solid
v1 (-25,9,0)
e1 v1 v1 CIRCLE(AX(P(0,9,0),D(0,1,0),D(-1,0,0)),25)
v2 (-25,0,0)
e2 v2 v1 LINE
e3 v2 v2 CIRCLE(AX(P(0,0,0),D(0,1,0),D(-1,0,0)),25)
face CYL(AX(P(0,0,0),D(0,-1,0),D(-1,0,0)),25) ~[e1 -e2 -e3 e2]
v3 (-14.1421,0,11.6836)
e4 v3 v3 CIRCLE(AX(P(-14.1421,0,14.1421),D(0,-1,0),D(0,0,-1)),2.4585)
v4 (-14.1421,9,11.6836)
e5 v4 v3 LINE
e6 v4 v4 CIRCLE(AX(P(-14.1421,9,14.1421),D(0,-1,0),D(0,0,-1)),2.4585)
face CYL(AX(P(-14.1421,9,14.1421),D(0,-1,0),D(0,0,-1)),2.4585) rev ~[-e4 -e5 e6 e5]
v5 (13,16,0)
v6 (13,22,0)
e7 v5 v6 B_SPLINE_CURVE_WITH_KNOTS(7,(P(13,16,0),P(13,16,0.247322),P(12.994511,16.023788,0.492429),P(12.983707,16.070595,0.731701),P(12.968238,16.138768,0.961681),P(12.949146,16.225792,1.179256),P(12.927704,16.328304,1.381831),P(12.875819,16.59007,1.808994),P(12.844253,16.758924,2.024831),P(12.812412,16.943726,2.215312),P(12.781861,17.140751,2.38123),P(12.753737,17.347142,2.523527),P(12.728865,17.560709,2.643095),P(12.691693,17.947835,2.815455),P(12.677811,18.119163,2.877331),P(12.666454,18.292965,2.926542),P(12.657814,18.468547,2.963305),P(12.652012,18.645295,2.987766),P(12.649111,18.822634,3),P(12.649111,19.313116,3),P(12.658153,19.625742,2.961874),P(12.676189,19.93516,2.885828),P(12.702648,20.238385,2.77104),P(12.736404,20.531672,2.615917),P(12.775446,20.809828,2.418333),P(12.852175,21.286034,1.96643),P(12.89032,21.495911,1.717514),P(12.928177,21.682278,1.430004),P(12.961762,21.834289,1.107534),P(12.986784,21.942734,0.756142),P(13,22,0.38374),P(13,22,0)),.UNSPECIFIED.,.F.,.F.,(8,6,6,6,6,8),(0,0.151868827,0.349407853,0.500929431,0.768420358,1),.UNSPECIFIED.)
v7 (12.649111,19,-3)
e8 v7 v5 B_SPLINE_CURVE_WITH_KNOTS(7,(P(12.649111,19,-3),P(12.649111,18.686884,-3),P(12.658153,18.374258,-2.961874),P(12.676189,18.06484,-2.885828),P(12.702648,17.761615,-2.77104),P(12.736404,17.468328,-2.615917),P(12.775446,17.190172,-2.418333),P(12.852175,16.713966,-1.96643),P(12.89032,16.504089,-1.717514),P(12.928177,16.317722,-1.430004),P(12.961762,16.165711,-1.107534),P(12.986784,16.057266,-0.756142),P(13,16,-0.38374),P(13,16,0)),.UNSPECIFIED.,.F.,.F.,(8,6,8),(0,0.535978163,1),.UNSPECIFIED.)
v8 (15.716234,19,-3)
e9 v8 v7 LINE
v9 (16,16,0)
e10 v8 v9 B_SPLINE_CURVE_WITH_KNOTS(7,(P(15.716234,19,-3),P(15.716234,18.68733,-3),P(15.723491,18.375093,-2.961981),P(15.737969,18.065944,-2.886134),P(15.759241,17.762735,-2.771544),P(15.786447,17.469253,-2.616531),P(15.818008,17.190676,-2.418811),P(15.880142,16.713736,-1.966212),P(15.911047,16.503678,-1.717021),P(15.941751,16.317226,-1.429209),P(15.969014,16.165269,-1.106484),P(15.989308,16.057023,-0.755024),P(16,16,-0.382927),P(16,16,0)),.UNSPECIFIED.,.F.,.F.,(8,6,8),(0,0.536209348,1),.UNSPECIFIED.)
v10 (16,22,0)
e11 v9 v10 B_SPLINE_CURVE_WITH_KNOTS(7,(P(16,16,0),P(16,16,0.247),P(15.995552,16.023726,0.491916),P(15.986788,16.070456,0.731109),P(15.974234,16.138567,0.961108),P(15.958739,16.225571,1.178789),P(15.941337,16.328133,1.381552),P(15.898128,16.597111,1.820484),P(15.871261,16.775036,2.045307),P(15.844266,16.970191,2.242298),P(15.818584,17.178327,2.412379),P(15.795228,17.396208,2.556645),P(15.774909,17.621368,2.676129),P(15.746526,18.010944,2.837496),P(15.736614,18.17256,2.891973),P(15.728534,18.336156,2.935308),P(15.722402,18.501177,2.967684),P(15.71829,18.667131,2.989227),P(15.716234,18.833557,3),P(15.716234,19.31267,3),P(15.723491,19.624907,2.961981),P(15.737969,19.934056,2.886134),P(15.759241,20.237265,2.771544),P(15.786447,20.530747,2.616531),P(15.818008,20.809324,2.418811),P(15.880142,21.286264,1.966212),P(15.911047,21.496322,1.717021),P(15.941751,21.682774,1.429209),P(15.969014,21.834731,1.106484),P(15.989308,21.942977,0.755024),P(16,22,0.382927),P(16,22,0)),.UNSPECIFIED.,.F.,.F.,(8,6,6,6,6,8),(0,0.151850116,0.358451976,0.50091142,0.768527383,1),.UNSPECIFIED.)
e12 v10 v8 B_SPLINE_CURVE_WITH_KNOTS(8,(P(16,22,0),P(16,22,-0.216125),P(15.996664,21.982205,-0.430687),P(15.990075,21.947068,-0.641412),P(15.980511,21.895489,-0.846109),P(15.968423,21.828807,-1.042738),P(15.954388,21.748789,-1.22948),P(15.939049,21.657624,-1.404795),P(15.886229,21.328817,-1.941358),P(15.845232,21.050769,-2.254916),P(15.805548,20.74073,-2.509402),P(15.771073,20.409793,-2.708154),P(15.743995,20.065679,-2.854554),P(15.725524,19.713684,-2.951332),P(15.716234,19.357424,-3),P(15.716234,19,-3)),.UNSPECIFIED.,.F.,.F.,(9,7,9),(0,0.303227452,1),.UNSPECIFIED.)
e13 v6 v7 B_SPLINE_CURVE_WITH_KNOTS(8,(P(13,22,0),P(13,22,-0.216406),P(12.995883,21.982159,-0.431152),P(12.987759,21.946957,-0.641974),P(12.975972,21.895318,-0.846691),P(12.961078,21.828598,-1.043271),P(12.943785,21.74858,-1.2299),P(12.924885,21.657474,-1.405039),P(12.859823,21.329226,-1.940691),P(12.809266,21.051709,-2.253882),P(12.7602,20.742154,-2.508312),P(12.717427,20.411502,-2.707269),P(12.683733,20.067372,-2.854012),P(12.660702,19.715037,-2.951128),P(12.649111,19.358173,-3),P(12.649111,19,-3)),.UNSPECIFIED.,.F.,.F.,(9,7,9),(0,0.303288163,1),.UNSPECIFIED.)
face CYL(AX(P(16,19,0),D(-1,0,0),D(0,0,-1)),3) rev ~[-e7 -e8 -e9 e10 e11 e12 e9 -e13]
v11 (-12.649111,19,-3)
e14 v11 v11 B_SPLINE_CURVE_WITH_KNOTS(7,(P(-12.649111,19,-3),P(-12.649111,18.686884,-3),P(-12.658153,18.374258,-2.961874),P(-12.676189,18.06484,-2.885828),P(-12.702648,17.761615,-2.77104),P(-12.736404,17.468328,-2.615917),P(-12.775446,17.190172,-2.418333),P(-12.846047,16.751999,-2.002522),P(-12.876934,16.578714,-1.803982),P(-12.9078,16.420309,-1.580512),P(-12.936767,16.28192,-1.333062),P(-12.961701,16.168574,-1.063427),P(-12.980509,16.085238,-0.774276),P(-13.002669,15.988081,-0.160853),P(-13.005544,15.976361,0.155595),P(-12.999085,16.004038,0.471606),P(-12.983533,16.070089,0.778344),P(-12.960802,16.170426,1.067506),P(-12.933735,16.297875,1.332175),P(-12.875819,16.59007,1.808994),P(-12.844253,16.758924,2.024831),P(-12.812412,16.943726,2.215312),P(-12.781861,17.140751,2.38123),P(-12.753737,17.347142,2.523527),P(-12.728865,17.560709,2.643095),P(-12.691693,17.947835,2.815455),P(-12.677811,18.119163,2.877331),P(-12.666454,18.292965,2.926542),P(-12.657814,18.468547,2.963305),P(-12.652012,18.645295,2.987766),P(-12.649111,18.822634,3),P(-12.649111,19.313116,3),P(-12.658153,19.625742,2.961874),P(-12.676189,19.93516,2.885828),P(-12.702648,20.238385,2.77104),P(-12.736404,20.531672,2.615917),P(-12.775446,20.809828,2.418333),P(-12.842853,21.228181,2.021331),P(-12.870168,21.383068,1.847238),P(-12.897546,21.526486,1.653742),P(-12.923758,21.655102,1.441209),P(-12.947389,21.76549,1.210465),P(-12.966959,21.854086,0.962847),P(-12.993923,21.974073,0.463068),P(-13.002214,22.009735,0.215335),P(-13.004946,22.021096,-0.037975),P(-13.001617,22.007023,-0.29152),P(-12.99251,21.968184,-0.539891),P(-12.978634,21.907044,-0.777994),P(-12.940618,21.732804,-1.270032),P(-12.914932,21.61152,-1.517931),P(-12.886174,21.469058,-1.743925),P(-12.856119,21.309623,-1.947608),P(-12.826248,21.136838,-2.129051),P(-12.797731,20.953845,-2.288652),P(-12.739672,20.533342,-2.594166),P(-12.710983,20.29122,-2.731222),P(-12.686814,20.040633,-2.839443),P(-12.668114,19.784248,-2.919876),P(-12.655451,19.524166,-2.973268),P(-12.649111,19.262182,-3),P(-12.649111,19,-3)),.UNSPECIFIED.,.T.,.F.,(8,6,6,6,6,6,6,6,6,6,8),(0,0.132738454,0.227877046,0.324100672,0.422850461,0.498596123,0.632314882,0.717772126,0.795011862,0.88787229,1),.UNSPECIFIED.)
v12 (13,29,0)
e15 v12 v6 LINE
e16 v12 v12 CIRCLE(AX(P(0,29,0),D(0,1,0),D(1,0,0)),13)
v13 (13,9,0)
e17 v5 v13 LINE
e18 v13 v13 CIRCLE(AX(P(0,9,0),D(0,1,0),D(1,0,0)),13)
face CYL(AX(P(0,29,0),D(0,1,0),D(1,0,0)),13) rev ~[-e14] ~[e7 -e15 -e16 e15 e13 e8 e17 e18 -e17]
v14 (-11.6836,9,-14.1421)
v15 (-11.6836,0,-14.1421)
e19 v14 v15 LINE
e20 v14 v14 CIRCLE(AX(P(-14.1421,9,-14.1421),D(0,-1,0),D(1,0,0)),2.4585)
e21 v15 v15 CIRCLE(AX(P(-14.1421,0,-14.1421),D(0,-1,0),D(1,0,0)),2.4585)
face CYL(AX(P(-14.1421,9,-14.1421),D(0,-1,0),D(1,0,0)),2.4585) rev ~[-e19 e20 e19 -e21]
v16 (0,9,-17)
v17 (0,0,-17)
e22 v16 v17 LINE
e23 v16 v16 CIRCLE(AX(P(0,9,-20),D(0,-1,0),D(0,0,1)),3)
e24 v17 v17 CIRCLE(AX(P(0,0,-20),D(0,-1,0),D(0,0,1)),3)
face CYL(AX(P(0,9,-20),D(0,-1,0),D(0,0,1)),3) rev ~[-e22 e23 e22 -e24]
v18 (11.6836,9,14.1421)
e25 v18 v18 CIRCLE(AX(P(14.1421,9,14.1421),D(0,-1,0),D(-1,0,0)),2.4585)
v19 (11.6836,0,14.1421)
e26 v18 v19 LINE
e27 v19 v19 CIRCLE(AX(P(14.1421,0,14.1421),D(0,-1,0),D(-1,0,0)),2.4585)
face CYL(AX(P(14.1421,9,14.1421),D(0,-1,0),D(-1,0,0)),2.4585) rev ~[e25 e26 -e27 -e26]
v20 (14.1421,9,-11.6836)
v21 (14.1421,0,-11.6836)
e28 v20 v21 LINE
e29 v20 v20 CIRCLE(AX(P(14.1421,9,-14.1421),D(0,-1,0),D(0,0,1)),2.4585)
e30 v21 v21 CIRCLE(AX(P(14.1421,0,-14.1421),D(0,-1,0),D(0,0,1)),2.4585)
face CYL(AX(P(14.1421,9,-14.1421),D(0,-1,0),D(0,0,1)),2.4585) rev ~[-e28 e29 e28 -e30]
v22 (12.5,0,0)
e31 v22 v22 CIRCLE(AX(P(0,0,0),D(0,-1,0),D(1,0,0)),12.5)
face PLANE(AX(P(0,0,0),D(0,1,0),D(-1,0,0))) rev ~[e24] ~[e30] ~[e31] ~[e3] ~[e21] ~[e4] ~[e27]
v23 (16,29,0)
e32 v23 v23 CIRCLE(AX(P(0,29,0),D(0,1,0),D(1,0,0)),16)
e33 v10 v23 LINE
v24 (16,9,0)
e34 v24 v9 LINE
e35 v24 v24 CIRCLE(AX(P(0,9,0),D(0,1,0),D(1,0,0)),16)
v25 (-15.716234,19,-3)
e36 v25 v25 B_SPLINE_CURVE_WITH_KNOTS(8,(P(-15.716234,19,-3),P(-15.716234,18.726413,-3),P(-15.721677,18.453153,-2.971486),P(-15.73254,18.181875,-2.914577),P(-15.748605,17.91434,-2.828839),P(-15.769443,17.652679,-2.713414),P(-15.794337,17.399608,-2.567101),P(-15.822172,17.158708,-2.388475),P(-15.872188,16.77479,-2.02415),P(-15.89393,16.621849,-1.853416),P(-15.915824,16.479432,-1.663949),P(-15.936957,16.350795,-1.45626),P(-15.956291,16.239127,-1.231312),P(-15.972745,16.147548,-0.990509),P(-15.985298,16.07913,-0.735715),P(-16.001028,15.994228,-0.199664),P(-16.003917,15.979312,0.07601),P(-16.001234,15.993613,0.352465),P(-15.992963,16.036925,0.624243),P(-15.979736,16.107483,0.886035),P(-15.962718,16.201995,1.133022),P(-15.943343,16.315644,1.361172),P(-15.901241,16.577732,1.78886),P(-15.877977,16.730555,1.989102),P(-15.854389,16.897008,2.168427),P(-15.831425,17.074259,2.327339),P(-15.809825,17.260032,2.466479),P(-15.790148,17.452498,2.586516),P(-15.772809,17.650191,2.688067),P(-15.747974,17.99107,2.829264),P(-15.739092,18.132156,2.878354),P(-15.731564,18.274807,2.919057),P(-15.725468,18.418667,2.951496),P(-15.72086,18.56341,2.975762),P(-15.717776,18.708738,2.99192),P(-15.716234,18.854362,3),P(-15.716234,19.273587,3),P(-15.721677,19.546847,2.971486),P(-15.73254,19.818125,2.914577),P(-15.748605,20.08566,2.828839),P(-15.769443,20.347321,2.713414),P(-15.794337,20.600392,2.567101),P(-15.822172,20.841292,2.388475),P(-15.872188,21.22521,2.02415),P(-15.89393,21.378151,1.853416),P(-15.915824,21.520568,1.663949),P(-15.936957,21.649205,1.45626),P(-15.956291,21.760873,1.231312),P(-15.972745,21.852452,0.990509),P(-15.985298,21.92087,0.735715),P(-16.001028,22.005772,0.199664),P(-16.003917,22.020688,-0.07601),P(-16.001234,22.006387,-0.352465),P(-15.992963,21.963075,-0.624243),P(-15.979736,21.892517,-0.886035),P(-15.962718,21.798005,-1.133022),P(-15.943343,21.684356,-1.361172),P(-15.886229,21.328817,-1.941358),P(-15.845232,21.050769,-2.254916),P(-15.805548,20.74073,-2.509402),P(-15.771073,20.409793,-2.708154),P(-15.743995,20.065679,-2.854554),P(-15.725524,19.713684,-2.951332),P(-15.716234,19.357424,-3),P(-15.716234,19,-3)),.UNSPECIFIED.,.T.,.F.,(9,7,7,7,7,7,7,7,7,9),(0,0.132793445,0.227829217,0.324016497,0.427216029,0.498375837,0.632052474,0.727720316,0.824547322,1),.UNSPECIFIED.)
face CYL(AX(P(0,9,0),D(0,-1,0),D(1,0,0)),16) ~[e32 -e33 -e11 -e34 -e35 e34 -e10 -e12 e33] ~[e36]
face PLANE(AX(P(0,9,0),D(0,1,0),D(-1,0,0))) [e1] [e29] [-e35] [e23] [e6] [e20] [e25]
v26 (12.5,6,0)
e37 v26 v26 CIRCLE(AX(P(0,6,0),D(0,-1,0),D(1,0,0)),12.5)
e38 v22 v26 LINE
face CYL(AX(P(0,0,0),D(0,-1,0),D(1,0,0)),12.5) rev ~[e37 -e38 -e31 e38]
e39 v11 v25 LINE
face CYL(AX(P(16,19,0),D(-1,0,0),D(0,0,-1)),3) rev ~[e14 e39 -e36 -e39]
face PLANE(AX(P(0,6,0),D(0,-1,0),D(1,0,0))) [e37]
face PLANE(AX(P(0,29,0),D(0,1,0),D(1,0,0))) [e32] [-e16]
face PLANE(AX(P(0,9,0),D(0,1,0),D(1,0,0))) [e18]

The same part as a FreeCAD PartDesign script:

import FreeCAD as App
import Part
import Sketcher

V = App.Vector

doc = App.newDocument("Part")
body = doc.addObject("PartDesign::Body", "Body")

# Sketch on XZ plane
sketch1 = body.newObject("Sketcher::SketchObject", "Sketch")
sketch1.AttachmentSupport = (doc.getObject("XZ_Plane"), [""])
sketch1.MapMode = "FlatFace"
sketch1.addGeometry(Part.Circle(V(0, 0, 0), V(0, 0, 1), 25), False)
sketch1.addConstraint([
    Sketcher.Constraint("Coincident", 0, 3, -1, 1),
    Sketcher.Constraint("Diameter", 0, 50.0),
])
pad1 = body.newObject("PartDesign::Pad", "Pad")
pad1.Profile = sketch1
pad1.Length = 9
pad1.Reversed = True

# Sketch on XZ plane
sketch2 = body.newObject("Sketcher::SketchObject", "Sketch001")
sketch2.AttachmentSupport = (doc.getObject("XZ_Plane"), [""])
sketch2.MapMode = "FlatFace"
sketch2.addGeometry(Part.Circle(V(0, 0, 0), V(0, 0, 1), 12), False)
sketch2.addConstraint([
    Sketcher.Constraint("Coincident", 0, 3, -1, 1),
    Sketcher.Constraint("Diameter", 0, 25.0),
])
pocket1 = body.newObject("PartDesign::Pocket", "Pocket")
pocket1.Profile = sketch2
pocket1.Length = 6

# Sketch on XZ plane
sketch3 = body.newObject("Sketcher::SketchObject", "Sketch002")
sketch3.AttachmentSupport = (doc.getObject("XZ_Plane"), [""])
sketch3.MapMode = "FlatFace"
sketch3.AttachmentOffset = App.Placement(V(0, 0, -9), App.Rotation())
sketch3.addGeometry(Part.Circle(V(0, -20, 0), V(0, 0, 1), 3), False)
sketch3.addConstraint([
    Sketcher.Constraint("PointOnObject", 0, 3, -2),
    Sketcher.Constraint("Diameter", 0, 6.0),
    Sketcher.Constraint("DistanceY", 0, 3, -1, 1, 20.0),
])
doc.recompute()
hole = body.newObject("PartDesign::Hole", "Hole")
hole.Profile = sketch3
hole.ThreadType = "None"
hole.Diameter = 6
hole.DepthType = "ThroughAll"
hole.Reversed = True

# Sketch on XZ plane
sketch4 = body.newObject("Sketcher::SketchObject", "Sketch003")
sketch4.AttachmentSupport = (doc.getObject("XZ_Plane"), [""])
sketch4.MapMode = "FlatFace"
sketch4.AttachmentOffset = App.Placement(V(0, 0, -9), App.Rotation())
sketch4.addGeometry(Part.Circle(V(14.1, -14.1, 0), V(0, 0, 1), 2.5), False)
sketch4.addConstraint([
    Sketcher.Constraint("Diameter", 0, 4.917),
    Sketcher.Constraint("DistanceX", -1, 1, 0, 3, 14.142),
    Sketcher.Constraint("DistanceY", 0, 3, -1, 1, 14.142),
])
doc.recompute()
hole2 = body.newObject("PartDesign::Hole", "Hole001")
hole2.Profile = sketch4
hole2.ThreadType = "None"
hole2.Diameter = 4.917
hole2.DepthType = "ThroughAll"
hole2.Reversed = True
doc.recompute()

polarpattern = body.newObject("PartDesign::PolarPattern", "PolarPattern")
polarpattern.Originals = [hole2]
polarpattern.Axis = (doc.getObject("Y_Axis"), [""])
polarpattern.Angle = 360
polarpattern.Occurrences = 4
body.Tip = polarpattern

# Sketch on XZ plane
sketch5 = body.newObject("Sketcher::SketchObject", "Sketch004")
sketch5.AttachmentSupport = (doc.getObject("XZ_Plane"), [""])
sketch5.MapMode = "FlatFace"
sketch5.AttachmentOffset = App.Placement(V(0, 0, -9), App.Rotation())
sketch5.addGeometry(Part.Circle(V(0, 0, 0), V(0, 0, 1), 16), False)
sketch5.addConstraint([
    Sketcher.Constraint("Coincident", 0, 3, -1, 1),
    Sketcher.Constraint("Diameter", 0, 32.0),
])
pad2 = body.newObject("PartDesign::Pad", "Pad001")
pad2.Profile = sketch5
pad2.Length = 20
pad2.Reversed = True

# Sketch on YZ plane
sketch6 = body.newObject("Sketcher::SketchObject", "Sketch005")
sketch6.AttachmentSupport = (doc.getObject("YZ_Plane"), [""])
sketch6.MapMode = "FlatFace"
sketch6.AttachmentOffset = App.Placement(V(0, 0, 16), App.Rotation())
sketch6.addGeometry(Part.Circle(V(19, 0, 0), V(0, 0, 1), 3), False)
sketch6.addConstraint([
    Sketcher.Constraint("PointOnObject", 0, 3, -1),
    Sketcher.Constraint("Diameter", 0, 6.0),
    Sketcher.Constraint("DistanceX", -1, 1, 0, 3, 19.0),
])
doc.recompute()
hole3 = body.newObject("PartDesign::Hole", "Hole002")
hole3.Profile = sketch6
hole3.ThreadType = "None"
hole3.Diameter = 6
hole3.DepthType = "ThroughAll"

# Sketch on XZ plane
sketch7 = body.newObject("Sketcher::SketchObject", "Sketch006")
sketch7.AttachmentSupport = (doc.getObject("XZ_Plane"), [""])
sketch7.MapMode = "FlatFace"
sketch7.AttachmentOffset = App.Placement(V(0, 0, -29), App.Rotation())
sketch7.addGeometry(Part.Circle(V(0, 0, 0), V(0, 0, 1), 13), False)
sketch7.addConstraint([
    Sketcher.Constraint("Coincident", 0, 3, -1, 1),
    Sketcher.Constraint("Diameter", 0, 26.0),
])
pocket2 = body.newObject("PartDesign::Pocket", "Pocket001")
pocket2.Profile = sketch7
pocket2.Length = 20
pocket2.Reversed = True

doc.recompute()
